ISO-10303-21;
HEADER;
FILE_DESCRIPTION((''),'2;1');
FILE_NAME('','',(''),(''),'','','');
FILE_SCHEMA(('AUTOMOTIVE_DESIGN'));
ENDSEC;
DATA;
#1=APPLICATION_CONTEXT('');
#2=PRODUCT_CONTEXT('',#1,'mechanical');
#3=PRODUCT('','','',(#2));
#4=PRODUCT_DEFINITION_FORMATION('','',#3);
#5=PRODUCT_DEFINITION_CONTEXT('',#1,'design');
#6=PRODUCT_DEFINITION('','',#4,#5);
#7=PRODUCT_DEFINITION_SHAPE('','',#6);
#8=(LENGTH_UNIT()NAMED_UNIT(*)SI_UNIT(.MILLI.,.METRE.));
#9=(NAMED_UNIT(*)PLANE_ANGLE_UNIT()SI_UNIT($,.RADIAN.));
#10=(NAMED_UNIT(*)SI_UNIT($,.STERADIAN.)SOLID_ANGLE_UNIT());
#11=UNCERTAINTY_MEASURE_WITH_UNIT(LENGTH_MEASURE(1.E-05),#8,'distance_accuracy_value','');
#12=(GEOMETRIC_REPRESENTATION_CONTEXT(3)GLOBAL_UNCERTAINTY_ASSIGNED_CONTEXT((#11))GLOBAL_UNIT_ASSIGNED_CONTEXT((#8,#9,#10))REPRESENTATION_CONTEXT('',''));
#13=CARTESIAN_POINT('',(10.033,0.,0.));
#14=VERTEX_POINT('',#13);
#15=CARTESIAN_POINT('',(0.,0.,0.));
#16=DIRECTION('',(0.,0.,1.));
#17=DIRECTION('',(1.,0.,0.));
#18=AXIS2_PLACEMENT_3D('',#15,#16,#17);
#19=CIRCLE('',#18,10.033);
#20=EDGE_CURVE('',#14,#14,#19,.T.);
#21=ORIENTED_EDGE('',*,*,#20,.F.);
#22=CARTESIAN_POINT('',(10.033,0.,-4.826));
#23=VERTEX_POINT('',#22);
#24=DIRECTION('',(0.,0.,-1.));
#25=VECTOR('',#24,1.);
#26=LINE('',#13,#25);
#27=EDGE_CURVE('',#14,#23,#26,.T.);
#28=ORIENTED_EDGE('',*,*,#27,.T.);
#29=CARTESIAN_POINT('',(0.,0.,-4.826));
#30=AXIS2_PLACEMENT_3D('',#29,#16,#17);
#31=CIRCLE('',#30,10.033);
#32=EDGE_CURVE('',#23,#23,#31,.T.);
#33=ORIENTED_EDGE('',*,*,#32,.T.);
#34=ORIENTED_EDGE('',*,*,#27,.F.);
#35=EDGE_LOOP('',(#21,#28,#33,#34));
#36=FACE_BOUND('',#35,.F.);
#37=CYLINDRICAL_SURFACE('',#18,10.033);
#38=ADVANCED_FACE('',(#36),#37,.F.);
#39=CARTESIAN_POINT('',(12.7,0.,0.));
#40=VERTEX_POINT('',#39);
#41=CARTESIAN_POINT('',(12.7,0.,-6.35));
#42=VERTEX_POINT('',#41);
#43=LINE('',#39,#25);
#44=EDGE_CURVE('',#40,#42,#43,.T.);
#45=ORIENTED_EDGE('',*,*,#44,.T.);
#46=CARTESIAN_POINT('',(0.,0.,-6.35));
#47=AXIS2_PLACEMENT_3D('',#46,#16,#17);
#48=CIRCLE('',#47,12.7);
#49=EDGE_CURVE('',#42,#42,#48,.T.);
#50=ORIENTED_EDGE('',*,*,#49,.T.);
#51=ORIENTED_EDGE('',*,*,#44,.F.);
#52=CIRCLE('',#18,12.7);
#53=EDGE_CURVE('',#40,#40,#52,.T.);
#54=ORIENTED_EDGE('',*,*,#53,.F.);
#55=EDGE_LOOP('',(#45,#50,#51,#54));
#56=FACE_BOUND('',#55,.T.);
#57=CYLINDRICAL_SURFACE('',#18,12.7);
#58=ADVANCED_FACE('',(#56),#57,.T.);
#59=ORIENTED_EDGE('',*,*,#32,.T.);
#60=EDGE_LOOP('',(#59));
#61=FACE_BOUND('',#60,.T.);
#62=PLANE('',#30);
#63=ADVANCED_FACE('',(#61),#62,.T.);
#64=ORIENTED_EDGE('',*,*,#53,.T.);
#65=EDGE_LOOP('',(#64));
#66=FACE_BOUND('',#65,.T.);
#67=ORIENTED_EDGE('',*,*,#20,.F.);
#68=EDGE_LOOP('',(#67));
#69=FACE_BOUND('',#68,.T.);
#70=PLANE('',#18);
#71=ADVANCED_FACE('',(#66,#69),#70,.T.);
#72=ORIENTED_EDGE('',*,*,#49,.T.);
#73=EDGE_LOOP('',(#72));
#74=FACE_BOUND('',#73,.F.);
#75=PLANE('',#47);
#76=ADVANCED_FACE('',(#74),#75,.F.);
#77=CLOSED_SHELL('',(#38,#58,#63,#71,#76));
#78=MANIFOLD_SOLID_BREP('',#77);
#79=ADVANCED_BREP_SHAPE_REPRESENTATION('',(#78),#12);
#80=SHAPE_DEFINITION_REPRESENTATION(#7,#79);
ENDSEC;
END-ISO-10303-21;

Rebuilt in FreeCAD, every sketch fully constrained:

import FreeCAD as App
import Part
import Sketcher
from FreeCAD import Vector
Q = App.Units.Quantity

doc = App.newDocument("Part")
params = doc.addObject("Spreadsheet::Sheet", "Params")
for row, (alias, value) in enumerate([
    ("sketch1_diameter", "1 in"),
    ("pad1_length", "0.25 in"),
    ("sketch2_diameter", "0.79 in"),
    ("pocket1_length", "0.19 in"),
], start=1):
    params.set(f"A{row}", alias)
    params.set(f"B{row}", "=" + value)
    params.setAlias(f"B{row}", alias)

body = doc.addObject("PartDesign::Body", "Body")

# Sketch on XY plane
sketch1 = body.newObject("Sketcher::SketchObject", "Sketch")
sketch1.AttachmentSupport = (doc.getObject("XY_Plane"), [""])
sketch1.MapMode = "FlatFace"
sketch1.addGeometry(Part.Circle(Vector(0, 0, 0), Vector(0, 0, 1), 13), False)
sketch1.addConstraint(Sketcher.Constraint("Coincident", 0, 3, -1, 1))
sketch1.addConstraint(Sketcher.Constraint("Diameter", 0, Q("1 in")))
sketch1.setExpression("Constraints[1]", "Params.sketch1_diameter")
pad1 = body.newObject("PartDesign::Pad", "Pad")
pad1.Profile = sketch1
pad1.setExpression("Length", "Params.pad1_length")
pad1.Reversed = True

# Sketch on XY plane
sketch2 = body.newObject("Sketcher::SketchObject", "Sketch001")
sketch2.AttachmentSupport = (doc.getObject("XY_Plane"), [""])
sketch2.MapMode = "FlatFace"
sketch2.addGeometry(Part.Circle(Vector(0, 0, 0), Vector(0, 0, 1), 10), False)
sketch2.addConstraint(Sketcher.Constraint("Coincident", 0, 3, -1, 1))
sketch2.addConstraint(Sketcher.Constraint("Diameter", 0, Q("0.79 in")))
sketch2.setExpression("Constraints[1]", "Params.sketch2_diameter")
pocket1 = body.newObject("PartDesign::Pocket", "Pocket")
pocket1.Profile = sketch2
pocket1.setExpression("Length", "Params.pocket1_length")

doc.recompute()
